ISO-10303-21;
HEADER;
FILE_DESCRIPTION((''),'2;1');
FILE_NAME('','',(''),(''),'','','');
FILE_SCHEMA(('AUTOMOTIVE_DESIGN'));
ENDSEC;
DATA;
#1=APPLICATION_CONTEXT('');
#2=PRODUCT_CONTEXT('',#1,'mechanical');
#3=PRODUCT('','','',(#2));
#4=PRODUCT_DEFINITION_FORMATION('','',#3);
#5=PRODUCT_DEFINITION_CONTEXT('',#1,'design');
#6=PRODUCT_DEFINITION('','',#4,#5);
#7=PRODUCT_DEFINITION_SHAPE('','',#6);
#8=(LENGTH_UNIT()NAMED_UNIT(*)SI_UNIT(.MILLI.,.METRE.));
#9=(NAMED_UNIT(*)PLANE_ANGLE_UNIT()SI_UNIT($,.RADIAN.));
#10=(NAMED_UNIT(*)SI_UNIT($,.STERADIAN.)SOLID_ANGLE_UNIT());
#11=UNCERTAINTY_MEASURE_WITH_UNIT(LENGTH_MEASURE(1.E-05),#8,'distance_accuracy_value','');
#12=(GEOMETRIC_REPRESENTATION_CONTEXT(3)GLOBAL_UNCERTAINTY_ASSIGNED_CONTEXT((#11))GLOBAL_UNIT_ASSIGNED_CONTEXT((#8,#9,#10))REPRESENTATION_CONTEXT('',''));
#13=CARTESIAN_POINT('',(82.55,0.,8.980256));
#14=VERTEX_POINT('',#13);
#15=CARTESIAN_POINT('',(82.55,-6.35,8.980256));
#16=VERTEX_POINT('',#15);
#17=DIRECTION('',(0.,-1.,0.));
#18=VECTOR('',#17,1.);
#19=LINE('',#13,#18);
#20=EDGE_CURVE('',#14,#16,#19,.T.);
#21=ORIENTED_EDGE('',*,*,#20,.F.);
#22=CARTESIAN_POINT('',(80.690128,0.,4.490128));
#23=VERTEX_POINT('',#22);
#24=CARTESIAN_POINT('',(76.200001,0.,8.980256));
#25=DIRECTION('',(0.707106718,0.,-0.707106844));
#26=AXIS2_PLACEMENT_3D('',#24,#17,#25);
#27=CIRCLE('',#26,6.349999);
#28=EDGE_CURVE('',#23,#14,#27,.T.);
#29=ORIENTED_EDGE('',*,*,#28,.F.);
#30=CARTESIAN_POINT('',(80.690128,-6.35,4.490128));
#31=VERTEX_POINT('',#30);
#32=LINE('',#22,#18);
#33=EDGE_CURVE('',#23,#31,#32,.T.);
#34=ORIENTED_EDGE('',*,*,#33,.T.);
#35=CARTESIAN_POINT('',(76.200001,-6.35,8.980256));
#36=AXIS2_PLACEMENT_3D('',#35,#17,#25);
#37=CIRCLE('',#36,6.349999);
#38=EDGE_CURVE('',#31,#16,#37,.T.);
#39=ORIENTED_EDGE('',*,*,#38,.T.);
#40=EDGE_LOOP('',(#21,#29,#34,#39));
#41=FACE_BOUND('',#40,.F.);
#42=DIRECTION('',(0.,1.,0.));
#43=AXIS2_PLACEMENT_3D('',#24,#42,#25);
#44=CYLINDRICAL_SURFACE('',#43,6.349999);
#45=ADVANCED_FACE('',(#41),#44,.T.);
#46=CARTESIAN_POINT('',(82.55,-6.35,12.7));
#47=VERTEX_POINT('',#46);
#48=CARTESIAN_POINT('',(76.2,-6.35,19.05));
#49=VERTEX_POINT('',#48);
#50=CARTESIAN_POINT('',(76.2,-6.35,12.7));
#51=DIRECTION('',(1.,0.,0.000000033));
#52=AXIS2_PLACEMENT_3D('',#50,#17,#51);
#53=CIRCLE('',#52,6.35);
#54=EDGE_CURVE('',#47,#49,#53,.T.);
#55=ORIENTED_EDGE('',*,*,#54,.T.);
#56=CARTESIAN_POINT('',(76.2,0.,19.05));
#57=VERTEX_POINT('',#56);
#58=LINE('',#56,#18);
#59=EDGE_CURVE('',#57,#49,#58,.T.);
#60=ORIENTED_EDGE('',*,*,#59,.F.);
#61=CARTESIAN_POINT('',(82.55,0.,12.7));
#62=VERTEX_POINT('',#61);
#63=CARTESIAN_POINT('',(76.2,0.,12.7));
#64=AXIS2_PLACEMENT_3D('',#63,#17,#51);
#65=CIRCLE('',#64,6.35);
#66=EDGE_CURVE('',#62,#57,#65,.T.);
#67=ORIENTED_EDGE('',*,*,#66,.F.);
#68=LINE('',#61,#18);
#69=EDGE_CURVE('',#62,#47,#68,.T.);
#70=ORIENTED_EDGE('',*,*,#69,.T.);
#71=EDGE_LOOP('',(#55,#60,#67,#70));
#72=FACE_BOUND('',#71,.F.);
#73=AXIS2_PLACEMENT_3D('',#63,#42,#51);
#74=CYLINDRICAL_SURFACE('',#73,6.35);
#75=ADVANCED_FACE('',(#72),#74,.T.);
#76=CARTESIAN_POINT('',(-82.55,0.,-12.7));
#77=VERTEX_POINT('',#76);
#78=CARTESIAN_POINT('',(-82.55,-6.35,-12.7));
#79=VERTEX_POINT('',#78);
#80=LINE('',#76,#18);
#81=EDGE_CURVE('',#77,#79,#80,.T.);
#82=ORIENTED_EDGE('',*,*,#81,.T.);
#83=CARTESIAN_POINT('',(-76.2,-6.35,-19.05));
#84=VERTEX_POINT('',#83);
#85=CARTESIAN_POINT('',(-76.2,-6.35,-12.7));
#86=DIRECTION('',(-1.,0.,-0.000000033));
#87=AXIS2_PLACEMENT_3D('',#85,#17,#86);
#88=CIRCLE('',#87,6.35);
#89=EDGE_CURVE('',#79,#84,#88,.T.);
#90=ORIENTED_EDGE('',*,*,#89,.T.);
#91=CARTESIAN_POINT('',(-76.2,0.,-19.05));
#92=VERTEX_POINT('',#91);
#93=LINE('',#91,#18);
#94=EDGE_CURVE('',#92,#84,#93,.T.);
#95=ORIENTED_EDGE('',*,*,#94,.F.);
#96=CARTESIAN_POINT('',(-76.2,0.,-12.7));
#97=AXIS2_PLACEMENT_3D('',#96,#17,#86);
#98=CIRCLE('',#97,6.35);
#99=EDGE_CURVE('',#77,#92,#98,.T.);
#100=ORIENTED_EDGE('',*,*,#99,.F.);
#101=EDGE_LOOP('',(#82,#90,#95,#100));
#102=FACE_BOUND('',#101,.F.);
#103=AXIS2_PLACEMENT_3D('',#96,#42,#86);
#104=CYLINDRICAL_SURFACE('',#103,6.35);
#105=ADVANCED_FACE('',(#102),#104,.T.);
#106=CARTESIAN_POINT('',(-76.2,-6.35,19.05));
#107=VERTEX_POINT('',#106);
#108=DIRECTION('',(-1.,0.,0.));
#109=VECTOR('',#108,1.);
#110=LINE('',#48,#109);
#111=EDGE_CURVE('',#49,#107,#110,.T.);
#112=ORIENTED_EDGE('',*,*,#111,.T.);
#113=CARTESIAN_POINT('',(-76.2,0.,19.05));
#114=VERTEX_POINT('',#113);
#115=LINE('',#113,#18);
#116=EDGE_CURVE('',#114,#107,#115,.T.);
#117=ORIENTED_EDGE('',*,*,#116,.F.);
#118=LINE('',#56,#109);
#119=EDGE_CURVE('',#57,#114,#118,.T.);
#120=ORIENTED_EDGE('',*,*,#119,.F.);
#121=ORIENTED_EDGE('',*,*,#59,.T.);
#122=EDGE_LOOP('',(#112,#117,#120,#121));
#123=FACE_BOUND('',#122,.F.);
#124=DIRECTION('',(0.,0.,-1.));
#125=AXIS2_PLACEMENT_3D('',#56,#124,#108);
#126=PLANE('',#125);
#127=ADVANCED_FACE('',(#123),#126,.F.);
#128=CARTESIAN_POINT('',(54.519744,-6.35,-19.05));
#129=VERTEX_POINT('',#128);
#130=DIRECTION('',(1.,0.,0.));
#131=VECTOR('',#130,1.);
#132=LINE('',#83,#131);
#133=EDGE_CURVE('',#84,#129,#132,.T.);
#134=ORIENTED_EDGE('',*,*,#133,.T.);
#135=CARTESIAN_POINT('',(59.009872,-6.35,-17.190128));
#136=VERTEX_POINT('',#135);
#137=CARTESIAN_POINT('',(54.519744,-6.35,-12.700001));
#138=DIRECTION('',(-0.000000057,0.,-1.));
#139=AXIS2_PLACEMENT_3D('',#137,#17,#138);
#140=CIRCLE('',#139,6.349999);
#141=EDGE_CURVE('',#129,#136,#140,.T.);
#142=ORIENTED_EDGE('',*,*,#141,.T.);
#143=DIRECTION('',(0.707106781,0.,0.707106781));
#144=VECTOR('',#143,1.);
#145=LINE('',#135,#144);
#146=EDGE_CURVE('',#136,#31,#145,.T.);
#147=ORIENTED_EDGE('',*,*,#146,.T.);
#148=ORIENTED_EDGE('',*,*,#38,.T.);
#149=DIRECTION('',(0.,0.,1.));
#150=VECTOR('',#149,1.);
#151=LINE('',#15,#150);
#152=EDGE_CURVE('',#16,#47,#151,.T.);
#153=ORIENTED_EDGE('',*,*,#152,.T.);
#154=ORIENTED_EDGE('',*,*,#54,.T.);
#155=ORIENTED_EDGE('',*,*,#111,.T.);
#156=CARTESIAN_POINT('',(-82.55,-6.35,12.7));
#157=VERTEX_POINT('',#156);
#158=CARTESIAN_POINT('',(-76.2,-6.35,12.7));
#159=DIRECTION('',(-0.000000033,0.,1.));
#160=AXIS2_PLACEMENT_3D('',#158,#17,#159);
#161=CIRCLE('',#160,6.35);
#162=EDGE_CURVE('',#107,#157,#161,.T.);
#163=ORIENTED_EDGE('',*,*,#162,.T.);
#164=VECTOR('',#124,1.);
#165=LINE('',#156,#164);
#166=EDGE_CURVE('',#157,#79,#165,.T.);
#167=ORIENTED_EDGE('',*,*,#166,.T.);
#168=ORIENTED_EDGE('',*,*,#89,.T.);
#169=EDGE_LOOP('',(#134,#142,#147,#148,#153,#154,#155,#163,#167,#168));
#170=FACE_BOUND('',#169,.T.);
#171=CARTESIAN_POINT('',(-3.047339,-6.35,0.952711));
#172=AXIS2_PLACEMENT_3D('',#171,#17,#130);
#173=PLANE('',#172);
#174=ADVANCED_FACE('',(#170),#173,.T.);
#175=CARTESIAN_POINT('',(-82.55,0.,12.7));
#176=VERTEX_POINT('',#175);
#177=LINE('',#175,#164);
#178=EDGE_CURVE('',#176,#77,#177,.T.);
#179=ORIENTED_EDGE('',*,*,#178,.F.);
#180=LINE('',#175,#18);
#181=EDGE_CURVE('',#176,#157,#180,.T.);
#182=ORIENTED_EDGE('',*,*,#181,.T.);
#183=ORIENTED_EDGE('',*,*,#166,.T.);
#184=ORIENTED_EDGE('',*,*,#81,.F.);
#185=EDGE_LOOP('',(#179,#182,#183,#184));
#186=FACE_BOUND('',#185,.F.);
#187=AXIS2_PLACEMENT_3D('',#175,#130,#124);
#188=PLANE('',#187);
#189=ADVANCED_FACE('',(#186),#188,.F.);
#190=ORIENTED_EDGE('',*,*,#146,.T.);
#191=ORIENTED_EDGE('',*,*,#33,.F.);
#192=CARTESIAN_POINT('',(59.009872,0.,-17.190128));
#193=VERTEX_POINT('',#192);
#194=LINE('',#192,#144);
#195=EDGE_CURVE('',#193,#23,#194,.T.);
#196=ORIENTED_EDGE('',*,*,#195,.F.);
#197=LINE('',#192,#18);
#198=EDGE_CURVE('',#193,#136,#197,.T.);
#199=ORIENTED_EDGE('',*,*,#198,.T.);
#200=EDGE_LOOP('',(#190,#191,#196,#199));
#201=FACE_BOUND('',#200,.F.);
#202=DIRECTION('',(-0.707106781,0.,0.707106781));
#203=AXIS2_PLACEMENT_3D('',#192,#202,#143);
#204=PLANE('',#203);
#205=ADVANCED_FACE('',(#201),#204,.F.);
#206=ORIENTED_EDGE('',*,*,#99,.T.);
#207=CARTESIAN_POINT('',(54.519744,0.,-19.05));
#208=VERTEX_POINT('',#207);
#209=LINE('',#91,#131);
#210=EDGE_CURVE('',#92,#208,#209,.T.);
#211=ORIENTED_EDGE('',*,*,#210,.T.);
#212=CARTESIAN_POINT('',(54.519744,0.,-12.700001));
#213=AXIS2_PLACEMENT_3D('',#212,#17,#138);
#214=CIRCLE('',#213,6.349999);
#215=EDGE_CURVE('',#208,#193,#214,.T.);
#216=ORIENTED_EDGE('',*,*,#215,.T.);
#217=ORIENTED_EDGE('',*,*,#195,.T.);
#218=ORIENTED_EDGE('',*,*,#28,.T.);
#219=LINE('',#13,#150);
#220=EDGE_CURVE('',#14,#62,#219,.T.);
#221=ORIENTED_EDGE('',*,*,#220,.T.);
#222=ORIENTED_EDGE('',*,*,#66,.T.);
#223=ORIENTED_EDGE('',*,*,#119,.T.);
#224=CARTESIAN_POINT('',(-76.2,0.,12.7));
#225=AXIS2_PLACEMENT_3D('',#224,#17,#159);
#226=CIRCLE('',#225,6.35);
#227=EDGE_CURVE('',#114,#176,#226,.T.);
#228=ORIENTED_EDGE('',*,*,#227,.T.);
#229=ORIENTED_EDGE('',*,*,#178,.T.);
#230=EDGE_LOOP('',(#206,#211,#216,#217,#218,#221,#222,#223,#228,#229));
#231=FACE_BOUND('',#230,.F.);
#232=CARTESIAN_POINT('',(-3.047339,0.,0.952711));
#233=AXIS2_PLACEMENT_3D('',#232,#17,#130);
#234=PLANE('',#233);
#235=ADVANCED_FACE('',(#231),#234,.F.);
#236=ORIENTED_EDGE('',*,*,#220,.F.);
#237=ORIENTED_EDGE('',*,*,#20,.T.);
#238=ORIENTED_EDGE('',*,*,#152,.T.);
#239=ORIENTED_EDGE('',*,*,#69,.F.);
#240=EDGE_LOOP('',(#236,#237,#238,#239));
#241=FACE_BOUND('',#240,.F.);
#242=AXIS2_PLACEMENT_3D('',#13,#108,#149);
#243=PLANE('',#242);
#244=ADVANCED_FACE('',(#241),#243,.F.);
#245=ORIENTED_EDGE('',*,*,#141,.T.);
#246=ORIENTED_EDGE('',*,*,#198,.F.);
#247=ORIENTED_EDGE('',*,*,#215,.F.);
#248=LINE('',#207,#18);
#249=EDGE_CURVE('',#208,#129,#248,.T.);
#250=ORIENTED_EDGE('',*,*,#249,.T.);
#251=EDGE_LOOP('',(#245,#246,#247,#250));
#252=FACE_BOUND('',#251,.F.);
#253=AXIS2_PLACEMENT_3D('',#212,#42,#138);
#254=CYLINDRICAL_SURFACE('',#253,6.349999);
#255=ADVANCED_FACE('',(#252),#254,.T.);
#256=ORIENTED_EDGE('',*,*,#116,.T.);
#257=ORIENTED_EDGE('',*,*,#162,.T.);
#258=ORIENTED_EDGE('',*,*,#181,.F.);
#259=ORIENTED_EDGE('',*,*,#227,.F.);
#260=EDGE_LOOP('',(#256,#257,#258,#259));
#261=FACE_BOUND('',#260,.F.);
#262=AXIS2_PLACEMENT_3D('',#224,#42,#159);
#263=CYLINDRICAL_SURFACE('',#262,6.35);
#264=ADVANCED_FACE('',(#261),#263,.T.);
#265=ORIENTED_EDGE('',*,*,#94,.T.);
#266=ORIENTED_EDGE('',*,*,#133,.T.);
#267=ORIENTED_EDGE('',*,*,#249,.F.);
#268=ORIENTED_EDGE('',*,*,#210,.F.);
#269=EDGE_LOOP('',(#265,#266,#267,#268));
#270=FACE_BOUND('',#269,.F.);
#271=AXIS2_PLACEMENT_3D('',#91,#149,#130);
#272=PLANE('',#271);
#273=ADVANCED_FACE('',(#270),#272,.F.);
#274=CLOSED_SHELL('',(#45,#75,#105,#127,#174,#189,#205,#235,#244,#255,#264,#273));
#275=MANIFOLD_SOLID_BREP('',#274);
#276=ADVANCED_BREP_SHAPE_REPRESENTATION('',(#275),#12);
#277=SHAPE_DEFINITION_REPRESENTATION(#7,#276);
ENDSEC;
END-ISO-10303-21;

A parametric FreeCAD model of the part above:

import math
import FreeCAD as App
import Part
import Sketcher
Q = App.Units.Quantity

doc = App.newDocument("Part")
body = doc.addObject("PartDesign::Body", "Body")

# Sketch on XZ plane
sketch1 = doc.addObject("Sketcher::SketchObject", "Sketch")
body.addObject(sketch1)
sketch1.AttachmentSupport = (doc.XZ_Plane, [""])
sketch1.MapMode = "FlatFace"
sketch1.addGeometry(Part.ArcOfCircle(Part.Circle(App.Vector(76.2, 12.7, 0), App.Vector(0, 0, 1), 6.4), math.radians(0), math.radians(90)), False)
sketch1.addGeometry(Part.LineSegment(App.Vector(76.2, 19.1, 0), App.Vector(-76.2, 19.1, 0)), False)
sketch1.addGeometry(Part.ArcOfCircle(Part.Circle(App.Vector(-76.2, 12.7, 0), App.Vector(0, 0, 1), 6.4), math.radians(90), math.radians(180)), False)
sketch1.addGeometry(Part.LineSegment(App.Vector(-82.5, 12.7, 0), App.Vector(-82.5, -12.7, 0)), False)
sketch1.addGeometry(Part.ArcOfCircle(Part.Circle(App.Vector(-76.2, -12.7, 0), App.Vector(0, 0, 1), 6.4), math.radians(-180), math.radians(-90)), False)
sketch1.addGeometry(Part.LineSegment(App.Vector(-76.2, -19.1, 0), App.Vector(54.5, -19.1, 0)), False)
sketch1.addGeometry(Part.ArcOfCircle(Part.Circle(App.Vector(54.5, -12.7, 0), App.Vector(0, 0, 1), 6.3), math.radians(-90), math.radians(-45)), False)
sketch1.addGeometry(Part.LineSegment(App.Vector(59, -17.2, 0), App.Vector(80.7, 4.5, 0)), False)
sketch1.addGeometry(Part.ArcOfCircle(Part.Circle(App.Vector(76.2, 9, 0), App.Vector(0, 0, 1), 6.3), math.radians(-45), math.radians(0)), False)
sketch1.addGeometry(Part.LineSegment(App.Vector(82.5, 9, 0), App.Vector(82.5, 12.7, 0)), False)
sketch1.addConstraint(Sketcher.Constraint("Tangent", 0, 2, 1, 1))
sketch1.addConstraint(Sketcher.Constraint("Tangent", 1, 2, 2, 1))
sketch1.addConstraint(Sketcher.Constraint("Tangent", 2, 2, 3, 1))
sketch1.addConstraint(Sketcher.Constraint("Tangent", 3, 2, 4, 1))
sketch1.addConstraint(Sketcher.Constraint("Tangent", 4, 2, 5, 1))
sketch1.addConstraint(Sketcher.Constraint("Tangent", 5, 2, 6, 1))
sketch1.addConstraint(Sketcher.Constraint("Tangent", 6, 2, 7, 1))
sketch1.addConstraint(Sketcher.Constraint("Tangent", 7, 2, 8, 1))
sketch1.addConstraint(Sketcher.Constraint("Tangent", 8, 2, 9, 1))
sketch1.addConstraint(Sketcher.Constraint("Tangent", 9, 2, 0, 1))
sketch1.addConstraint(Sketcher.Constraint("Horizontal", 1))
sketch1.addConstraint(Sketcher.Constraint("Vertical", 3))
sketch1.addConstraint(Sketcher.Constraint("Horizontal", 5))
sketch1.addConstraint(Sketcher.Constraint("Vertical", 9))
sketch1.addConstraint(Sketcher.Constraint("Equal", 0, 2))
sketch1.addConstraint(Sketcher.Constraint("Equal", 2, 4))
sketch1.addConstraint(Sketcher.Constraint("Equal", 4, 6))
sketch1.addConstraint(Sketcher.Constraint("Equal", 6, 8))
sketch1.addConstraint(Sketcher.Constraint("Symmetric", 0, 3, 4, 3, -1, 1))
sketch1.addConstraint(Sketcher.Constraint("DistanceX", 1, 2, 1, 1, Q("6 in")))
sketch1.addConstraint(Sketcher.Constraint("DistanceY", 3, 2, 3, 1, Q("1 in")))
sketch1.addConstraint(Sketcher.Constraint("Radius", 0, Q("0.25 in")))
sketch1.addConstraint(Sketcher.Constraint("Angle", 7, Q("45 deg")))
sketch1.addConstraint(Sketcher.Constraint("DistanceX", 5, 1, 5, 2, 130.719744))
pad1 = doc.addObject("PartDesign::Pad", "Pad")
body.addObject(pad1)
pad1.Profile = sketch1
pad1.Length = Q("0.25 in")

doc.recompute()
